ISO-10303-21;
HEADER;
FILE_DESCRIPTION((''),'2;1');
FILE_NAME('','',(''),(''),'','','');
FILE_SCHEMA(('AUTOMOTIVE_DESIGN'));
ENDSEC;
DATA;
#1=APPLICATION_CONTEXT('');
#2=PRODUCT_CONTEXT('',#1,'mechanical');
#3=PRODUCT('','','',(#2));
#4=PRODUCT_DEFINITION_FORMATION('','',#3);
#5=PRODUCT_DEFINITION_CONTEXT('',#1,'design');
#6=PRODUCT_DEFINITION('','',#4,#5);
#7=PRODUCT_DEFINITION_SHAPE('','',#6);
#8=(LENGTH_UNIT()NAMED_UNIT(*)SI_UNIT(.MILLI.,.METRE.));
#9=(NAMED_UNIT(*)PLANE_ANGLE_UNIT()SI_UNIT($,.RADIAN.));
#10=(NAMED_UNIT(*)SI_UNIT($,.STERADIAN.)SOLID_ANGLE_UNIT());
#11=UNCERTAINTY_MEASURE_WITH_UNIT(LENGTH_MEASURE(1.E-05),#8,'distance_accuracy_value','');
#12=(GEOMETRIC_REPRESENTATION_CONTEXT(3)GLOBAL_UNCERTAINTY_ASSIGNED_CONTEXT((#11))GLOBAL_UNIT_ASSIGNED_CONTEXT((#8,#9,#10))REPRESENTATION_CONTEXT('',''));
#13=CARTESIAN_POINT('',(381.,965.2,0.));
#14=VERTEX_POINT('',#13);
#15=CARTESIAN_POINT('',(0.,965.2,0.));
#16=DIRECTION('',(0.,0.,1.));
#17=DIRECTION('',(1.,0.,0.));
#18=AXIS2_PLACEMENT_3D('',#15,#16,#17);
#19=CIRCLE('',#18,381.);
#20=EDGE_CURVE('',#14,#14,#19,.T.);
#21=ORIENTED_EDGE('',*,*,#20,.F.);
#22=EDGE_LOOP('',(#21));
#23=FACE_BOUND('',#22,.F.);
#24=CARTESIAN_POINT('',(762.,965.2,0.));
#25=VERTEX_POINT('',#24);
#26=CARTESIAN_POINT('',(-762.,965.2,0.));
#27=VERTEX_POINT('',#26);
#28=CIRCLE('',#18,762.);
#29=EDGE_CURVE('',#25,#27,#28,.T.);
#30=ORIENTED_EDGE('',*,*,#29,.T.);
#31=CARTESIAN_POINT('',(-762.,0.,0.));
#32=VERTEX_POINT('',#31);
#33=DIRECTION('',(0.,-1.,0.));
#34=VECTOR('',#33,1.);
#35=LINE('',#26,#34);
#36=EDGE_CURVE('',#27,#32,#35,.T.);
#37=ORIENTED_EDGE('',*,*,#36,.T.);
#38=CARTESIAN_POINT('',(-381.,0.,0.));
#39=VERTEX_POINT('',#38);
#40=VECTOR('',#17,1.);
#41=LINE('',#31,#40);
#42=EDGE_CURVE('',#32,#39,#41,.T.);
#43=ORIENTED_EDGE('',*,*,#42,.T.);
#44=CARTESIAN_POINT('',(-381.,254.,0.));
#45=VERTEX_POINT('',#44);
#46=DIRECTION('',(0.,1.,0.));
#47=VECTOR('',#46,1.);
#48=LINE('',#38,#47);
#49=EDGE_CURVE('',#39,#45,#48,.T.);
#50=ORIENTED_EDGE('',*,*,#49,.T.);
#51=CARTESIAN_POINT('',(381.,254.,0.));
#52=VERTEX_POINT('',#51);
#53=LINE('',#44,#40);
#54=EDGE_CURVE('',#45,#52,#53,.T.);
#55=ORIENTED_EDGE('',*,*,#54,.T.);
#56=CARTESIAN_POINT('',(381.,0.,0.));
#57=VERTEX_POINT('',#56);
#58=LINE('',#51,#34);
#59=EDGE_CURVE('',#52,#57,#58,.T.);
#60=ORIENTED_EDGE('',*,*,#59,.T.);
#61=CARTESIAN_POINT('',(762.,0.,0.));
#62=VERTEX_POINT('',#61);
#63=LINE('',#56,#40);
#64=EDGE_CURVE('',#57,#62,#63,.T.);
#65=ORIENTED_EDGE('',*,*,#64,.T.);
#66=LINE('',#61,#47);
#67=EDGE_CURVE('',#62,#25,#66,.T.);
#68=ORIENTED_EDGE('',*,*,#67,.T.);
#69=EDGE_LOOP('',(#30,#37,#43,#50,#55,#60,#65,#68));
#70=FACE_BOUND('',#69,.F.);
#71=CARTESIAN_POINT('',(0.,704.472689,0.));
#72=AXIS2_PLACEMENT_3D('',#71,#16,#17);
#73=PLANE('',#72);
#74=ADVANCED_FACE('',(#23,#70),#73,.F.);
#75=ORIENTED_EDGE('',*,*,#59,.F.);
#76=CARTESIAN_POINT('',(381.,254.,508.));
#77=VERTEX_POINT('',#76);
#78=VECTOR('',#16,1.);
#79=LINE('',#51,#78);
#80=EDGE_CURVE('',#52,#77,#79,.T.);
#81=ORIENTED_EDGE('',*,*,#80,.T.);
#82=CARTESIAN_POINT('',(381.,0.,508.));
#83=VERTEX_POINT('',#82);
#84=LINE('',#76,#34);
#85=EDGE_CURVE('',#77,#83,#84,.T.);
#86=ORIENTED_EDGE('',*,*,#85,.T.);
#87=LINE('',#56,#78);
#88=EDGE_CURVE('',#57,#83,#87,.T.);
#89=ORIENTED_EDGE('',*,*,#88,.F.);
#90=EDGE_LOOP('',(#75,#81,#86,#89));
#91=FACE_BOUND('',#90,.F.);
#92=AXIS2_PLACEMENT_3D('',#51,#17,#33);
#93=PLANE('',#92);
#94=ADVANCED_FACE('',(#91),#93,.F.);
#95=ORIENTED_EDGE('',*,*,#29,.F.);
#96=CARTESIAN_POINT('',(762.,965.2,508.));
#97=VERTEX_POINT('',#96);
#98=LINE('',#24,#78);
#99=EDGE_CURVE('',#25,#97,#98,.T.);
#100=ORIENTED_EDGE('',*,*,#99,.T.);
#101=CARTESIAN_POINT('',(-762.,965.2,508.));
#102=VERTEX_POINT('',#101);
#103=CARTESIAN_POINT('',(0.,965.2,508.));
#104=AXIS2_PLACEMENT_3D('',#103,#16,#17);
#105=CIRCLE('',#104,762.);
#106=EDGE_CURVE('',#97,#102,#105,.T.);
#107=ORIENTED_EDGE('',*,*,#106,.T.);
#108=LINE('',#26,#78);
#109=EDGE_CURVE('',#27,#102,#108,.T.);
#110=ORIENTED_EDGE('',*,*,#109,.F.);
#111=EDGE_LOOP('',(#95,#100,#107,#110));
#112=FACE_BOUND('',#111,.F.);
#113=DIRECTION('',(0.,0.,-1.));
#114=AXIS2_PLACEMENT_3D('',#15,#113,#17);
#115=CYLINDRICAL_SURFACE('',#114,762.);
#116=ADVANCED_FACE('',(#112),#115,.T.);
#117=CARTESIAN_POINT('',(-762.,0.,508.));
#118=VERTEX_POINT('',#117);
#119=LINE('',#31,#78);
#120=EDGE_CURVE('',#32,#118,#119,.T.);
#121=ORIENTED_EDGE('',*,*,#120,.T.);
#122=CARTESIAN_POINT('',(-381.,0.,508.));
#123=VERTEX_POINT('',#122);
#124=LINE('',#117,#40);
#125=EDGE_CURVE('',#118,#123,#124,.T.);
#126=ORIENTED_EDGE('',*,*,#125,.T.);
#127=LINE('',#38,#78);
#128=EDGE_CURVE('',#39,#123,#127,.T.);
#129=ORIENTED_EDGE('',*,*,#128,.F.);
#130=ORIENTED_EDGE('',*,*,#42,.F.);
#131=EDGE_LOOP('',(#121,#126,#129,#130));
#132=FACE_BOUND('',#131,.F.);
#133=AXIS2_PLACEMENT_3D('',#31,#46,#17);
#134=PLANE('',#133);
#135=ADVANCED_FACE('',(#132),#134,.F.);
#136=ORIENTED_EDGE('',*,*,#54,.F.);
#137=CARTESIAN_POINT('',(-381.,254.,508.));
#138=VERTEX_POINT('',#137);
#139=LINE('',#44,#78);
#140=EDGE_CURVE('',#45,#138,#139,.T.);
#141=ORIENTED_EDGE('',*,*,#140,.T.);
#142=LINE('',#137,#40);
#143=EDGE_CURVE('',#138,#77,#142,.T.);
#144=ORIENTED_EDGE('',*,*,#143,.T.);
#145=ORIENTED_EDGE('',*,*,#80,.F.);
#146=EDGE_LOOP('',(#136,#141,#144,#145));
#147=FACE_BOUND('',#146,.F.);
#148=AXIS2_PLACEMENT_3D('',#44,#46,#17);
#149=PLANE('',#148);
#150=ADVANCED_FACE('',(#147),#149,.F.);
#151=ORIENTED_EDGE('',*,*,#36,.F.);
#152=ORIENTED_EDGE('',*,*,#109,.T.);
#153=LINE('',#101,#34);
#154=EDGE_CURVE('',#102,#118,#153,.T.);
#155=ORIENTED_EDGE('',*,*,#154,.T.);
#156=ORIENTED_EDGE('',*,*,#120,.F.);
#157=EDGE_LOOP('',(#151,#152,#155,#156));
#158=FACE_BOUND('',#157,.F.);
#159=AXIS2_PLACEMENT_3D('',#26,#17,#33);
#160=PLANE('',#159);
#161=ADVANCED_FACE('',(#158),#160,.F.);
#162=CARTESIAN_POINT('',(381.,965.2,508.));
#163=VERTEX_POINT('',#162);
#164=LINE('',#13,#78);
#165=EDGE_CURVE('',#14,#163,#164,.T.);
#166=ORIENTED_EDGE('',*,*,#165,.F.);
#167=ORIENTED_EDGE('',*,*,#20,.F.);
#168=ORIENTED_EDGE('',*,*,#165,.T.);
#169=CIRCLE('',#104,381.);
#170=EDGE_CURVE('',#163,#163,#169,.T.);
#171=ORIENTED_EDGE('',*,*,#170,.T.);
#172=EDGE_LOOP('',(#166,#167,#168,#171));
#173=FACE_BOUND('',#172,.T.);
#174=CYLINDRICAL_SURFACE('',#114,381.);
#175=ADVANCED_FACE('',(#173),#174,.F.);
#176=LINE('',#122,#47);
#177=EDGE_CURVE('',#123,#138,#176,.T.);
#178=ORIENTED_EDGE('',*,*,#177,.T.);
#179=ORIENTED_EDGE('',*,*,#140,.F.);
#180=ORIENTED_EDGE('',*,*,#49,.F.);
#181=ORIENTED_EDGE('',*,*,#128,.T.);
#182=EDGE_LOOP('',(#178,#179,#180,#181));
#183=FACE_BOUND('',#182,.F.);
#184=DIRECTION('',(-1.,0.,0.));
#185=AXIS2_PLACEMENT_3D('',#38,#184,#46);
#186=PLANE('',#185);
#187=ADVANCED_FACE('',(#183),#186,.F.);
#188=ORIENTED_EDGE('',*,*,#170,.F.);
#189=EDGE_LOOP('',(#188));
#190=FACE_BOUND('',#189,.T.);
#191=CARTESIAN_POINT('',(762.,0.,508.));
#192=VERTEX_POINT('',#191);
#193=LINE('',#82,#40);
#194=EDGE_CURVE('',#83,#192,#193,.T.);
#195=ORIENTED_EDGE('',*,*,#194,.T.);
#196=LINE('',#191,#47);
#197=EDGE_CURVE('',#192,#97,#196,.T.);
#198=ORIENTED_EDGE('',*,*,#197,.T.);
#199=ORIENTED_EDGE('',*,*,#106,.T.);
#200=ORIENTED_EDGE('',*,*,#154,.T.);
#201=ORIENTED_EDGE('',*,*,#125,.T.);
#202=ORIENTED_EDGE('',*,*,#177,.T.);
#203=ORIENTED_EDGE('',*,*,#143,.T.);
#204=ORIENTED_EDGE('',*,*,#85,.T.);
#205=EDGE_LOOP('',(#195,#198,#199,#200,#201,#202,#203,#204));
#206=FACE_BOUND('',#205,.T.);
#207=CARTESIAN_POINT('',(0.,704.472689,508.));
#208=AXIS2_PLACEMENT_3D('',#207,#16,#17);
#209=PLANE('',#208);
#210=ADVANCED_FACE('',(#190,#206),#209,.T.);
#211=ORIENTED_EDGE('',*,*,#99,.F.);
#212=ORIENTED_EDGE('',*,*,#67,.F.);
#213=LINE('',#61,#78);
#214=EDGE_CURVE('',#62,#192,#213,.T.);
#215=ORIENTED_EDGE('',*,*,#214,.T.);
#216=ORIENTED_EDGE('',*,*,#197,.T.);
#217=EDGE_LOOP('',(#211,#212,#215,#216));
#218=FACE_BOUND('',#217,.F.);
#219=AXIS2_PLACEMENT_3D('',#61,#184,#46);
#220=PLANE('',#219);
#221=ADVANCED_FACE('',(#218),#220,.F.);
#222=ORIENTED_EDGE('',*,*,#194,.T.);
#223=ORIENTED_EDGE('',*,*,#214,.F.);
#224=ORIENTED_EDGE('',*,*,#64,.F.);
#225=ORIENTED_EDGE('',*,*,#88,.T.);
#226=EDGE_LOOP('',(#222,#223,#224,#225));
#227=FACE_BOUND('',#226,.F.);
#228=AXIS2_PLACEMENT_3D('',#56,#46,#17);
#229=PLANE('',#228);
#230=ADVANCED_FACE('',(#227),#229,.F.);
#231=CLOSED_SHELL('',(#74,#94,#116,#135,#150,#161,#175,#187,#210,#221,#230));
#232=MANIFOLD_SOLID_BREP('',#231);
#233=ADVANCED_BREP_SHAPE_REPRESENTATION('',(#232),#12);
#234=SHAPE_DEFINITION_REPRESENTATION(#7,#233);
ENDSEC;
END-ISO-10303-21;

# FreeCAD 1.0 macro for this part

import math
import FreeCAD as App
import Part
import Sketcher
from FreeCAD import Vector
Q = App.Units.Quantity

doc = App.newDocument("Part")
params = doc.addObject("Spreadsheet::Sheet", "Params")
for row, (alias, value) in enumerate([
    ("sketch1_diameter", "30 in"),
    ("sketch1_radius", "30 in"),
    ("sketch1_width", "15 in"),
    ("sketch1_height", "10 in"),
    ("sketch1_height2", "38 in"),
    ("pad1_length", "20 in"),
], start=1):
    params.set(f"A{row}", alias)
    params.set(f"B{row}", "=" + value)
    params.setAlias(f"B{row}", alias)

body = doc.addObject("PartDesign::Body", "Body")

sketch1 = body.newObject("Sketcher::SketchObject", "Sketch")
sketch1.AttachmentSupport = (doc.getObject("XY_Plane"), [""])
sketch1.MapMode = "FlatFace"
sketch1.addGeometry(Part.LineSegment(Vector(-762, 0, 0), Vector(-381, 0, 0)), False)
sketch1.addGeometry(Part.LineSegment(Vector(-381, 0, 0), Vector(-381, 254, 0)), False)
sketch1.addGeometry(Part.LineSegment(Vector(-381, 254, 0), Vector(381, 254, 0)), False)
sketch1.addGeometry(Part.LineSegment(Vector(381, 254, 0), Vector(381, 0, 0)), False)
sketch1.addGeometry(Part.LineSegment(Vector(381, 0, 0), Vector(762, 0, 0)), False)
sketch1.addGeometry(Part.LineSegment(Vector(762, 0, 0), Vector(762, 965, 0)), False)
sketch1.addGeometry(Part.ArcOfCircle(Part.Circle(Vector(0, 965, 0), Vector(0, 0, 1), 762), math.radians(0), math.radians(180)), False)
sketch1.addGeometry(Part.LineSegment(Vector(-762, 965, 0), Vector(-762, 0, 0)), False)
sketch1.addGeometry(Part.Circle(Vector(0, 965, 0), Vector(0, 0, 1), 381), False)
sketch1.addConstraint(Sketcher.Constraint("Coincident", 0, 2, 1, 1))
sketch1.addConstraint(Sketcher.Constraint("Coincident", 1, 2, 2, 1))
sketch1.addConstraint(Sketcher.Constraint("Coincident", 2, 2, 3, 1))
sketch1.addConstraint(Sketcher.Constraint("Coincident", 3, 2, 4, 1))
sketch1.addConstraint(Sketcher.Constraint("Coincident", 4, 2, 5, 1))
sketch1.addConstraint(Sketcher.Constraint("Tangent", 5, 2, 6, 1))
sketch1.addConstraint(Sketcher.Constraint("Tangent", 6, 2, 7, 1))
sketch1.addConstraint(Sketcher.Constraint("Coincident", 7, 2, 0, 1))
sketch1.addConstraint(Sketcher.Constraint("Horizontal", 0))
sketch1.addConstraint(Sketcher.Constraint("Vertical", 1))
sketch1.addConstraint(Sketcher.Constraint("Horizontal", 2))
sketch1.addConstraint(Sketcher.Constraint("Vertical", 3))
sketch1.addConstraint(Sketcher.Constraint("Horizontal", 4))
sketch1.addConstraint(Sketcher.Constraint("Vertical", 5))
sketch1.addConstraint(Sketcher.Constraint("Vertical", 7))
sketch1.addConstraint(Sketcher.Constraint("Coincident", 8, 3, 6, 3))
sketch1.addConstraint(Sketcher.Constraint("Symmetric", 0, 2, 3, 2, -1, 1))
sketch1.addConstraint(Sketcher.Constraint("Symmetric", 4, 2, 7, 2, -2))
sketch1.addConstraint(Sketcher.Constraint("Diameter", 8, Q("30 in")))
sketch1.addConstraint(Sketcher.Constraint("Radius", 6, Q("30 in")))
sketch1.addConstraint(Sketcher.Constraint("DistanceX", 0, 1, 0, 2, Q("15 in")))
sketch1.addConstraint(Sketcher.Constraint("DistanceY", 1, 1, 1, 2, Q("10 in")))
sketch1.addConstraint(Sketcher.Constraint("DistanceY", 5, 1, 5, 2, Q("38 in")))
sketch1.setExpression("Constraints[18]", "Params.sketch1_diameter")
sketch1.setExpression("Constraints[19]", "Params.sketch1_radius")
sketch1.setExpression("Constraints[20]", "Params.sketch1_width")
sketch1.setExpression("Constraints[21]", "Params.sketch1_height")
sketch1.setExpression("Constraints[22]", "Params.sketch1_height2")
pad1 = body.newObject("PartDesign::Pad", "Pad")
pad1.Profile = sketch1
pad1.setExpression("Length", "Params.pad1_length")

doc.recompute()
